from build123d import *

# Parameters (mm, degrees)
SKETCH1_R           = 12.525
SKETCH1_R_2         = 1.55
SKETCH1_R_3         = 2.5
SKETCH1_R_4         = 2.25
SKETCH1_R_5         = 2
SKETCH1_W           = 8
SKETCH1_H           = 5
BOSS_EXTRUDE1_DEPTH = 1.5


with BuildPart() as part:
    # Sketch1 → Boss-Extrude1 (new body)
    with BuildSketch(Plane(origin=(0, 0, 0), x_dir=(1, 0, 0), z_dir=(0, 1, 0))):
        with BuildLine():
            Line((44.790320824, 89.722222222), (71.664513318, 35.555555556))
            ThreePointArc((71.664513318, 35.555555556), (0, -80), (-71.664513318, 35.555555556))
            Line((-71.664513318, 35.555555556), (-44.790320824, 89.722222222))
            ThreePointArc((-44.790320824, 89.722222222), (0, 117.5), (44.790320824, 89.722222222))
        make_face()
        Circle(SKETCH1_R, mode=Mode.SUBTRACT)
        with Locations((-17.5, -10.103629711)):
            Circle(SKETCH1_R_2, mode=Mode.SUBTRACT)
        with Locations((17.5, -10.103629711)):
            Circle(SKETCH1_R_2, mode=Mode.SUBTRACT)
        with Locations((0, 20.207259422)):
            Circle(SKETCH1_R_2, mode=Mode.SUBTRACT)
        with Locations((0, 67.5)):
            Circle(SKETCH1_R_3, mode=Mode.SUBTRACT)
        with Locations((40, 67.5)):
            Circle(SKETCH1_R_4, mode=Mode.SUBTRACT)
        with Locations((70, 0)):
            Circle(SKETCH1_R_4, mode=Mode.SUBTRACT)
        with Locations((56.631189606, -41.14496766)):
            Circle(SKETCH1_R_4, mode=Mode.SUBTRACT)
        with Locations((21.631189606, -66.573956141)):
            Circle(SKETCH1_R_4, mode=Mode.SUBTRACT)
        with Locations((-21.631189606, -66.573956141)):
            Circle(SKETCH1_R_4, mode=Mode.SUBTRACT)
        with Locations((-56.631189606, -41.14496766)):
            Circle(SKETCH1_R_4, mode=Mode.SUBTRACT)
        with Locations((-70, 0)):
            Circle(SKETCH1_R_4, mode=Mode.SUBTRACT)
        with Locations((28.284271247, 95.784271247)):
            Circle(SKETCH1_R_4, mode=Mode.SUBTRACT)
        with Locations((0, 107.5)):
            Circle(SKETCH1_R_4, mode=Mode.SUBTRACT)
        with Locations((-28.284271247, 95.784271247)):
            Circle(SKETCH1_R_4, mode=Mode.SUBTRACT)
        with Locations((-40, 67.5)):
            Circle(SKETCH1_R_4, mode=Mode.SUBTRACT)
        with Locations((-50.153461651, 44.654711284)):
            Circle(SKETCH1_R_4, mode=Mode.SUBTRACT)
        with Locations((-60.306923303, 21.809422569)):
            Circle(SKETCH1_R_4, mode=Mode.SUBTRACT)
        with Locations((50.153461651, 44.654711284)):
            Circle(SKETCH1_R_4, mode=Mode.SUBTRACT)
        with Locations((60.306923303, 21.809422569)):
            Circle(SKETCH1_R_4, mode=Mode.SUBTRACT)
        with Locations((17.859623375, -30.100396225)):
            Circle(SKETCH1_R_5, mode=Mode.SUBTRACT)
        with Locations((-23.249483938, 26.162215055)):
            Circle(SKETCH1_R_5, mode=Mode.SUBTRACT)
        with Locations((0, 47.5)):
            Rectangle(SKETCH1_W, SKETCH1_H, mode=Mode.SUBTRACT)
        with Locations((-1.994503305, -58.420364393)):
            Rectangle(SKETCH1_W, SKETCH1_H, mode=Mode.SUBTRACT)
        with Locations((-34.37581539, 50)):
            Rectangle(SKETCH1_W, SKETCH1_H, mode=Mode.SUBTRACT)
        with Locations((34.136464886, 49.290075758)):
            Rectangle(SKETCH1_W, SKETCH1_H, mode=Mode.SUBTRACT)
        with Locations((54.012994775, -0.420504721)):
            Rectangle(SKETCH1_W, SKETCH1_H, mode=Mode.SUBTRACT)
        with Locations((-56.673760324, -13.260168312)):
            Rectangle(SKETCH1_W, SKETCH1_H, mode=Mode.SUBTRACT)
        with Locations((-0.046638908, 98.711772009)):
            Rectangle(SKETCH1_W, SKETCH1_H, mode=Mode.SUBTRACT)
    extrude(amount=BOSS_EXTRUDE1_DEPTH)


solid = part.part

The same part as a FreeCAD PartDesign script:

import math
import FreeCAD as App
import Part
import Sketcher


def add_polygon(sketch, points):
    """Adds a closed chain of lines whose ends are joined by coincident constraints."""
    first, n = sketch.GeometryCount, len(points)
    for a, b in zip(points, points[1:] + points[:1]):
        sketch.addGeometry(Part.LineSegment(App.Vector(*a, 0), App.Vector(*b, 0)), False)
    for i in range(n):
        sketch.addConstraint(Sketcher.Constraint("Coincident", first + i, 2, first + (i + 1) % n, 1))

doc = App.newDocument("Part")
body = doc.addObject("PartDesign::Body", "Body")

sketch1 = doc.addObject("Sketcher::SketchObject", "Sketch")
body.addObject(sketch1)
sketch1.AttachmentSupport = (doc.XZ_Plane, [""])
sketch1.MapMode = "FlatFace"
sketch1.addGeometry(Part.LineSegment(App.Vector(71.7, -35.6, 0), App.Vector(44.8, -89.7, 0)), False)
sketch1.addGeometry(Part.ArcOfCircle(Part.Circle(App.Vector(0, -67.5, 0), App.Vector(0, 0, 1), 50), math.radians(-154), math.radians(-26)), False)
sketch1.addGeometry(Part.LineSegment(App.Vector(-44.8, -89.7, 0), App.Vector(-71.7, -35.6, 0)), False)
sketch1.addGeometry(Part.ArcOfCircle(Part.Circle(App.Vector(0, 0, 0), App.Vector(0, 0, 1), 80), math.radians(-26), math.radians(206)), False)
sketch1.addGeometry(Part.Circle(App.Vector(56.6, 41.1, 0), App.Vector(0, 0, 1), 2.2), False)
sketch1.addGeometry(Part.Circle(App.Vector(21.6, 66.6, 0), App.Vector(0, 0, 1), 2.2), False)
sketch1.addGeometry(Part.Circle(App.Vector(17.9, 30.1, 0), App.Vector(0, 0, 1), 2), False)
sketch1.addGeometry(Part.Circle(App.Vector(70, 0, 0), App.Vector(0, 0, 1), 2.2), False)
add_polygon(sketch1, [(50, 2.9), (50, -2.1), (58, -2.1), (58, 2.9)])
sketch1.addGeometry(Part.Circle(App.Vector(17.5, 10.1, 0), App.Vector(0, 0, 1), 1.6), False)
add_polygon(sketch1, [(-6, 60.9), (-6, 55.9), (2, 55.9), (2, 60.9)])
sketch1.addGeometry(Part.Circle(App.Vector(-21.6, 66.6, 0), App.Vector(0, 0, 1), 2.2), False)
sketch1.addGeometry(Part.Circle(App.Vector(-56.6, 41.1, 0), App.Vector(0, 0, 1), 2.2), False)
sketch1.addGeometry(Part.Circle(App.Vector(-17.5, 10.1, 0), App.Vector(0, 0, 1), 1.6), False)
sketch1.addGeometry(Part.Circle(App.Vector(0, 0, 0), App.Vector(0, 0, 1), 12.5), False)
sketch1.addGeometry(Part.Circle(App.Vector(0, -20.2, 0), App.Vector(0, 0, 1), 1.6), False)
add_polygon(sketch1, [(-60.7, 15.8), (-60.7, 10.8), (-52.7, 10.8), (-52.7, 15.8)])
sketch1.addGeometry(Part.Circle(App.Vector(-70, 0, 0), App.Vector(0, 0, 1), 2.2), False)
sketch1.addGeometry(Part.Circle(App.Vector(60.3, -21.8, 0), App.Vector(0, 0, 1), 2.2), False)
sketch1.addGeometry(Part.Circle(App.Vector(50.2, -44.7, 0), App.Vector(0, 0, 1), 2.2), False)
add_polygon(sketch1, [(30.1, -46.8), (30.1, -51.8), (38.1, -51.8), (38.1, -46.8)])
sketch1.addGeometry(Part.Circle(App.Vector(40, -67.5, 0), App.Vector(0, 0, 1), 2.2), False)
sketch1.addGeometry(Part.Circle(App.Vector(28.3, -95.8, 0), App.Vector(0, 0, 1), 2.2), False)
sketch1.addGeometry(Part.Circle(App.Vector(-23.2, -26.2, 0), App.Vector(0, 0, 1), 2), False)
add_polygon(sketch1, [(-4, -45), (-4, -50), (4, -50), (4, -45)])
add_polygon(sketch1, [(-38.4, -47.5), (-38.4, -52.5), (-30.4, -52.5), (-30.4, -47.5)])
sketch1.addGeometry(Part.Circle(App.Vector(-60.3, -21.8, 0), App.Vector(0, 0, 1), 2.2), False)
sketch1.addGeometry(Part.Circle(App.Vector(-50.2, -44.7, 0), App.Vector(0, 0, 1), 2.2), False)
sketch1.addGeometry(Part.Circle(App.Vector(0, -67.5, 0), App.Vector(0, 0, 1), 2.5), False)
add_polygon(sketch1, [(-4, -96.2), (-4, -101.2), (4, -101.2), (4, -96.2)])
sketch1.addGeometry(Part.Circle(App.Vector(0, -107.5, 0), App.Vector(0, 0, 1), 2.2), False)
sketch1.addGeometry(Part.Circle(App.Vector(-28.3, -95.8, 0), App.Vector(0, 0, 1), 2.2), False)
sketch1.addGeometry(Part.Circle(App.Vector(-40, -67.5, 0), App.Vector(0, 0, 1), 2.2), False)
sketch1.addConstraint(Sketcher.Constraint("Tangent", 0, 2, 1, 2))
sketch1.addConstraint(Sketcher.Constraint("Tangent", 1, 1, 2, 1))
sketch1.addConstraint(Sketcher.Constraint("Tangent", 2, 2, 3, 2))
sketch1.addConstraint(Sketcher.Constraint("Tangent", 3, 1, 0, 1))
sketch1.addConstraint(Sketcher.Constraint("Vertical", 8))
sketch1.addConstraint(Sketcher.Constraint("Horizontal", 9))
sketch1.addConstraint(Sketcher.Constraint("Vertical", 10))
sketch1.addConstraint(Sketcher.Constraint("Horizontal", 11))
sketch1.addConstraint(Sketcher.Constraint("Vertical", 13))
sketch1.addConstraint(Sketcher.Constraint("Horizontal", 14))
sketch1.addConstraint(Sketcher.Constraint("Vertical", 15))
sketch1.addConstraint(Sketcher.Constraint("Horizontal", 16))
sketch1.addConstraint(Sketcher.Constraint("Vertical", 22))
sketch1.addConstraint(Sketcher.Constraint("Horizontal", 23))
sketch1.addConstraint(Sketcher.Constraint("Vertical", 24))
sketch1.addConstraint(Sketcher.Constraint("Horizontal", 25))
sketch1.addConstraint(Sketcher.Constraint("Vertical", 29))
sketch1.addConstraint(Sketcher.Constraint("Horizontal", 30))
sketch1.addConstraint(Sketcher.Constraint("Vertical", 31))
sketch1.addConstraint(Sketcher.Constraint("Horizontal", 32))
sketch1.addConstraint(Sketcher.Constraint("Vertical", 36))
sketch1.addConstraint(Sketcher.Constraint("Horizontal", 37))
sketch1.addConstraint(Sketcher.Constraint("Vertical", 38))
sketch1.addConstraint(Sketcher.Constraint("Horizontal", 39))
sketch1.addConstraint(Sketcher.Constraint("Vertical", 40))
sketch1.addConstraint(Sketcher.Constraint("Horizontal", 41))
sketch1.addConstraint(Sketcher.Constraint("Vertical", 42))
sketch1.addConstraint(Sketcher.Constraint("Horizontal", 43))
sketch1.addConstraint(Sketcher.Constraint("Vertical", 47))
sketch1.addConstraint(Sketcher.Constraint("Horizontal", 48))
sketch1.addConstraint(Sketcher.Constraint("Vertical", 49))
sketch1.addConstraint(Sketcher.Constraint("Horizontal", 50))
sketch1.addConstraint(Sketcher.Constraint("Coincident", 3, 3, -1, 1))
sketch1.addConstraint(Sketcher.Constraint("Coincident", 20, 3, -1, 1))
sketch1.addConstraint(Sketcher.Constraint("Coincident", 46, 3, 1, 3))
sketch1.addConstraint(Sketcher.Constraint("Equal", 4, 5))
sketch1.addConstraint(Sketcher.Constraint("Equal", 5, 7))
sketch1.addConstraint(Sketcher.Constraint("Equal", 7, 17))
sketch1.addConstraint(Sketcher.Constraint("Equal", 17, 18))
sketch1.addConstraint(Sketcher.Constraint("Equal", 12, 19))
sketch1.addConstraint(Sketcher.Constraint("Equal", 19, 21))
sketch1.addConstraint(Sketcher.Constraint("Equal", 18, 26))
sketch1.addConstraint(Sketcher.Constraint("Equal", 26, 27))
sketch1.addConstraint(Sketcher.Constraint("Equal", 27, 28))
sketch1.addConstraint(Sketcher.Constraint("Equal", 28, 33))
sketch1.addConstraint(Sketcher.Constraint("Equal", 33, 34))
sketch1.addConstraint(Sketcher.Constraint("Equal", 6, 35))
sketch1.addConstraint(Sketcher.Constraint("Equal", 34, 44))
sketch1.addConstraint(Sketcher.Constraint("Equal", 44, 45))
sketch1.addConstraint(Sketcher.Constraint("Equal", 45, 51))
sketch1.addConstraint(Sketcher.Constraint("Equal", 51, 52))
sketch1.addConstraint(Sketcher.Constraint("Equal", 52, 53))
sketch1.addConstraint(Sketcher.Constraint("Symmetric", 7, 3, 26, 3, -1, 1))
sketch1.addConstraint(Sketcher.Constraint("Symmetric", 5, 3, 17, 3, -2))
sketch1.addConstraint(Sketcher.Constraint("Symmetric", 4, 3, 18, 3, -2))
sketch1.addConstraint(Sketcher.Constraint("Symmetric", 12, 3, 19, 3, -2))
sketch1.addConstraint(Sketcher.Constraint("Symmetric", 27, 3, 44, 3, -2))
sketch1.addConstraint(Sketcher.Constraint("Symmetric", 28, 3, 45, 3, -2))
sketch1.addConstraint(Sketcher.Constraint("Symmetric", 34, 3, 52, 3, -2))
sketch1.addConstraint(Sketcher.Constraint("Symmetric", 33, 3, 53, 3, -2))
sketch1.addConstraint(Sketcher.Constraint("PointOnObject", 1, 3, -2))
sketch1.addConstraint(Sketcher.Constraint("PointOnObject", 7, 3, -1))
sketch1.addConstraint(Sketcher.Constraint("PointOnObject", 21, 3, -2))
sketch1.addConstraint(Sketcher.Constraint("PointOnObject", 51, 3, -2))
sketch1.addConstraint(Sketcher.Constraint("Horizontal", 1, 3, 33, 3))
sketch1.addConstraint(Sketcher.Constraint("Equal", 11, 14))
sketch1.addConstraint(Sketcher.Constraint("Equal", 16, 23))
sketch1.addConstraint(Sketcher.Constraint("Equal", 25, 30))
sketch1.addConstraint(Sketcher.Constraint("Equal", 32, 37))
sketch1.addConstraint(Sketcher.Constraint("Equal", 39, 41))
sketch1.addConstraint(Sketcher.Constraint("Equal", 43, 48))
sketch1.addConstraint(Sketcher.Constraint("Equal", 10, 13))
sketch1.addConstraint(Sketcher.Constraint("Equal", 15, 22))
sketch1.addConstraint(Sketcher.Constraint("Equal", 24, 29))
sketch1.addConstraint(Sketcher.Constraint("Equal", 31, 36))
sketch1.addConstraint(Sketcher.Constraint("Equal", 38, 40))
sketch1.addConstraint(Sketcher.Constraint("Equal", 42, 47))
sketch1.addConstraint(Sketcher.Constraint("Diameter", 6, 4.0))
sketch1.addConstraint(Sketcher.Constraint("Diameter", 46, 5.0))
sketch1.addConstraint(Sketcher.Constraint("Radius", 1, 50.0))
sketch1.addConstraint(Sketcher.Constraint("Radius", 3, 80.0))
sketch1.addConstraint(Sketcher.Constraint("Diameter", 4, 4.5))
sketch1.addConstraint(Sketcher.Constraint("Diameter", 12, 3.1))
sketch1.addConstraint(Sketcher.Constraint("Diameter", 20, 25.05))
sketch1.addConstraint(Sketcher.Constraint("DistanceX", 9, 1, 9, 2, 8.0))
sketch1.addConstraint(Sketcher.Constraint("DistanceY", 8, 2, 8, 1, 5.0))
sketch1.addConstraint(Sketcher.Constraint("DistanceX", -1, 1, 7, 3, 70.0))
sketch1.addConstraint(Sketcher.Constraint("DistanceX", -1, 1, 33, 3, 40.0))
sketch1.addConstraint(Sketcher.Constraint("DistanceX", 36, 2, -1, 1, 4.0))
sketch1.addConstraint(Sketcher.Constraint("DistanceY", 36, 2, -1, 1, 50.0))
sketch1.addConstraint(Sketcher.Constraint("DistanceX", 5, 3, 4, 3, 35.0))
sketch1.addConstraint(Sketcher.Constraint("DistanceX", 19, 3, 12, 3, 35.0))
sketch1.addConstraint(Sketcher.Constraint("DistanceY", 51, 3, 1, 3, 40.0))
sketch1.addConstraint(Sketcher.Constraint("DistanceY", 53, 3, 40, 2, 15.0))
sketch1.addConstraint(Sketcher.Constraint("DistanceY", 1, 3, -1, 1, 67.5))
sketch1.addConstraint(Sketcher.Constraint("DistanceY", 22, 2, 18, 3, 30.384799))
sketch1.addConstraint(Sketcher.Constraint("DistanceY", 47, 2, 52, 3, 5.427501))
sketch1.addConstraint(Sketcher.Constraint("DistanceX", -1, 1, 4, 3, 56.63119))
sketch1.addConstraint(Sketcher.Constraint("DistanceY", -1, 1, 12, 3, 10.10363))
sketch1.addConstraint(Sketcher.Constraint("DistanceY", 21, 3, -1, 1, 20.207259))
sketch1.addConstraint(Sketcher.Constraint("DistanceX", -1, 1, 28, 3, 50.153462))
sketch1.addConstraint(Sketcher.Constraint("DistanceY", 28, 3, -1, 1, 44.654711))
sketch1.addConstraint(Sketcher.Constraint("DistanceX", -1, 1, 34, 3, 28.284271))
sketch1.addConstraint(Sketcher.Constraint("DistanceY", 34, 3, -1, 1, 95.784271))
sketch1.addConstraint(Sketcher.Constraint("DistanceX", 22, 2, -1, 1, 60.67376))
sketch1.addConstraint(Sketcher.Constraint("DistanceY", -1, 1, 22, 2, 10.760168))
sketch1.addConstraint(Sketcher.Constraint("DistanceX", 47, 2, -1, 1, 4.046639))
sketch1.addConstraint(Sketcher.Constraint("DistanceY", 4, 3, 5, 3, 25.428988))
sketch1.addConstraint(Sketcher.Constraint("DistanceY", 6, 3, 5, 3, 36.47356))
sketch1.addConstraint(Sketcher.Constraint("DistanceY", 27, 3, 4, 3, 62.95439))
sketch1.addConstraint(Sketcher.Constraint("DistanceX", 28, 3, 27, 3, 10.153462))
sketch1.addConstraint(Sketcher.Constraint("DistanceX", 44, 3, 35, 3, 37.057439))
sketch1.addConstraint(Sketcher.Constraint("DistanceY", 2, 2, 35, 3, 9.393341))
sketch1.addConstraint(Sketcher.Constraint("DistanceX", 8, 2, 27, 3, 10.293929))
sketch1.addConstraint(Sketcher.Constraint("DistanceY", 3, 1, 8, 2, 33.47606))
sketch1.addConstraint(Sketcher.Constraint("DistanceY", 13, 2, 17, 3, 10.653592))
sketch1.addConstraint(Sketcher.Constraint("DistanceX", 30, 2, 3, 1, 33.528048))
sketch1.addConstraint(Sketcher.Constraint("DistanceY", 30, 2, 3, 1, 16.23452))
sketch1.addConstraint(Sketcher.Constraint("DistanceX", 40, 2, 35, 3, 15.126331))
sketch1.addConstraint(Sketcher.Constraint("DistanceX", -1, 1, 6, 3, 17.859623))
sketch1.addConstraint(Sketcher.Constraint("DistanceX", 13, 2, -1, 1, 5.994503))
pad1 = doc.addObject("PartDesign::Pad", "Pad")
body.addObject(pad1)
pad1.Profile = sketch1
pad1.Length = 1.5
pad1.Reversed = True

doc.recompute()
